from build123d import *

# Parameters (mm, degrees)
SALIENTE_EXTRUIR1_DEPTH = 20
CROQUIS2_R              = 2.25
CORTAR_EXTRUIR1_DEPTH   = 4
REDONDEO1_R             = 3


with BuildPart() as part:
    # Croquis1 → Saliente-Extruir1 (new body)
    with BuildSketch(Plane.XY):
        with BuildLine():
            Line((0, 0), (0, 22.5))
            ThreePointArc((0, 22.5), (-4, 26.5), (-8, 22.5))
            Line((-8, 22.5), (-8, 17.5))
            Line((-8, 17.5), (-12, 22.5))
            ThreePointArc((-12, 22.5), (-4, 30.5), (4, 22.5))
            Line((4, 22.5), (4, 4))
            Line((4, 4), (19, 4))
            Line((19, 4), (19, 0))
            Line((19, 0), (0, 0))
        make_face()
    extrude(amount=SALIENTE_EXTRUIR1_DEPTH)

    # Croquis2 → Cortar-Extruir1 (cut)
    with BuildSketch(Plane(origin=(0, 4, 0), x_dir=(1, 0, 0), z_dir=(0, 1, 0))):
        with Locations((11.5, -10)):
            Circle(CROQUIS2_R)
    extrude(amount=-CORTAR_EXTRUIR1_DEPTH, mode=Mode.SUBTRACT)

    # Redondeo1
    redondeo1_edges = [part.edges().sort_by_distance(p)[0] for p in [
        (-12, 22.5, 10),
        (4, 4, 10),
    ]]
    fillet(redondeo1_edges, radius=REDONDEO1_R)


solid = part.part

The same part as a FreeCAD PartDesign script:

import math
import FreeCAD as App
import Part
import Sketcher

V = App.Vector
Q = App.Units.Quantity


def edges_at(feature, points):
    """Names of the edges that pass closest to the given points."""
    edges = feature.Shape.Edges
    near = lambda p: min(range(len(edges)), key=lambda i: edges[i].distToShape(Part.Vertex(*p))[0])
    return sorted({f"Edge{near(p) + 1}" for p in points})

doc = App.newDocument("Part")
body = doc.addObject("PartDesign::Body", "Body")

# Sketch on XY plane
sketch1 = body.newObject("Sketcher::SketchObject", "Sketch")
sketch1.AttachmentSupport = (doc.getObject("XY_Plane"), [""])
sketch1.MapMode = "FlatFace"
sketch1.addGeometry([
    Part.LineSegment(V(0, 22.5, 0), V(0, 0, 0)),  # 0
    Part.LineSegment(V(0, 0, 0), V(19, 0, 0)),  # 1
    Part.LineSegment(V(19, 0, 0), V(19, 4, 0)),  # 2
    Part.LineSegment(V(19, 4, 0), V(4, 4, 0)),  # 3
    Part.LineSegment(V(4, 4, 0), V(4, 22.5, 0)),  # 4
    Part.ArcOfCircle(Part.Circle(V(-4, 22.5, 0), V(0, 0, 1), 8), math.radians(0), math.radians(180)),  # 5
    Part.LineSegment(V(-12, 22.5, 0), V(-8, 17.5, 0)),  # 6
    Part.LineSegment(V(-8, 17.5, 0), V(-8, 22.5, 0)),  # 7
    Part.ArcOfCircle(Part.Circle(V(-4, 22.5, 0), V(0, 0, 1), 4), math.radians(0), math.radians(180)),  # 8
], False)
sketch1.addConstraint([
    Sketcher.Constraint("Coincident", 0, 2, 1, 1),
    Sketcher.Constraint("Coincident", 1, 2, 2, 1),
    Sketcher.Constraint("Coincident", 2, 2, 3, 1),
    Sketcher.Constraint("Coincident", 3, 2, 4, 1),
    Sketcher.Constraint("Tangent", 4, 2, 5, 1),
    Sketcher.Constraint("Coincident", 5, 2, 6, 1),
    Sketcher.Constraint("Coincident", 6, 2, 7, 1),
    Sketcher.Constraint("Tangent", 7, 2, 8, 2),
    Sketcher.Constraint("Tangent", 8, 1, 0, 1),
    Sketcher.Constraint("Vertical", 0),
    Sketcher.Constraint("Horizontal", 1),
    Sketcher.Constraint("Vertical", 2),
    Sketcher.Constraint("Horizontal", 3),
    Sketcher.Constraint("Vertical", 4),
    Sketcher.Constraint("Vertical", 7),
    Sketcher.Constraint("Coincident", 0, 2, -1, 1),
    Sketcher.Constraint("Coincident", 8, 3, 5, 3),
    Sketcher.Constraint("Horizontal", 4, 2, 5, 2),
    Sketcher.Constraint("Radius", 5, Q("8 mm")),
    Sketcher.Constraint("Radius", 8, Q("4 mm")),
    Sketcher.Constraint("DistanceX", 1, 1, 1, 2, Q("19 mm")),
    Sketcher.Constraint("DistanceY", 2, 1, 2, 2, Q("4 mm")),
    Sketcher.Constraint("DistanceY", 7, 1, 7, 2, Q("5 mm")),
    Sketcher.Constraint("DistanceY", 0, 2, 0, 1, Q("22.5 mm")),
])
pad1 = body.newObject("PartDesign::Pad", "Pad")
pad1.Profile = sketch1
pad1.Length = 20

# Sketch on XZ plane
sketch2 = body.newObject("Sketcher::SketchObject", "Sketch001")
sketch2.AttachmentSupport = (doc.getObject("XZ_Plane"), [""])
sketch2.MapMode = "FlatFace"
sketch2.AttachmentOffset = App.Placement(V(0, 0, -4), App.Rotation())
sketch2.addGeometry(Part.Circle(V(11.5, 10, 0), V(0, 0, 1), 2.2), False)
sketch2.addConstraint([
    Sketcher.Constraint("Diameter", 0, Q("4.5 mm")),
    Sketcher.Constraint("DistanceY", -1, 1, 0, 3, Q("10 mm")),
    Sketcher.Constraint("DistanceX", -1, 1, 0, 3, Q("11.5 mm")),
])
pocket1 = body.newObject("PartDesign::Pocket", "Pocket")
pocket1.Profile = sketch2
pocket1.Length = 4
pocket1.Reversed = True
doc.recompute()

fillet = body.newObject("PartDesign::Fillet", "Fillet")
fillet.Base = (pocket1, edges_at(pocket1, [(-12, 22.5, 10), (4, 4, 10)]))
fillet.Radius = 3

doc.recompute()
